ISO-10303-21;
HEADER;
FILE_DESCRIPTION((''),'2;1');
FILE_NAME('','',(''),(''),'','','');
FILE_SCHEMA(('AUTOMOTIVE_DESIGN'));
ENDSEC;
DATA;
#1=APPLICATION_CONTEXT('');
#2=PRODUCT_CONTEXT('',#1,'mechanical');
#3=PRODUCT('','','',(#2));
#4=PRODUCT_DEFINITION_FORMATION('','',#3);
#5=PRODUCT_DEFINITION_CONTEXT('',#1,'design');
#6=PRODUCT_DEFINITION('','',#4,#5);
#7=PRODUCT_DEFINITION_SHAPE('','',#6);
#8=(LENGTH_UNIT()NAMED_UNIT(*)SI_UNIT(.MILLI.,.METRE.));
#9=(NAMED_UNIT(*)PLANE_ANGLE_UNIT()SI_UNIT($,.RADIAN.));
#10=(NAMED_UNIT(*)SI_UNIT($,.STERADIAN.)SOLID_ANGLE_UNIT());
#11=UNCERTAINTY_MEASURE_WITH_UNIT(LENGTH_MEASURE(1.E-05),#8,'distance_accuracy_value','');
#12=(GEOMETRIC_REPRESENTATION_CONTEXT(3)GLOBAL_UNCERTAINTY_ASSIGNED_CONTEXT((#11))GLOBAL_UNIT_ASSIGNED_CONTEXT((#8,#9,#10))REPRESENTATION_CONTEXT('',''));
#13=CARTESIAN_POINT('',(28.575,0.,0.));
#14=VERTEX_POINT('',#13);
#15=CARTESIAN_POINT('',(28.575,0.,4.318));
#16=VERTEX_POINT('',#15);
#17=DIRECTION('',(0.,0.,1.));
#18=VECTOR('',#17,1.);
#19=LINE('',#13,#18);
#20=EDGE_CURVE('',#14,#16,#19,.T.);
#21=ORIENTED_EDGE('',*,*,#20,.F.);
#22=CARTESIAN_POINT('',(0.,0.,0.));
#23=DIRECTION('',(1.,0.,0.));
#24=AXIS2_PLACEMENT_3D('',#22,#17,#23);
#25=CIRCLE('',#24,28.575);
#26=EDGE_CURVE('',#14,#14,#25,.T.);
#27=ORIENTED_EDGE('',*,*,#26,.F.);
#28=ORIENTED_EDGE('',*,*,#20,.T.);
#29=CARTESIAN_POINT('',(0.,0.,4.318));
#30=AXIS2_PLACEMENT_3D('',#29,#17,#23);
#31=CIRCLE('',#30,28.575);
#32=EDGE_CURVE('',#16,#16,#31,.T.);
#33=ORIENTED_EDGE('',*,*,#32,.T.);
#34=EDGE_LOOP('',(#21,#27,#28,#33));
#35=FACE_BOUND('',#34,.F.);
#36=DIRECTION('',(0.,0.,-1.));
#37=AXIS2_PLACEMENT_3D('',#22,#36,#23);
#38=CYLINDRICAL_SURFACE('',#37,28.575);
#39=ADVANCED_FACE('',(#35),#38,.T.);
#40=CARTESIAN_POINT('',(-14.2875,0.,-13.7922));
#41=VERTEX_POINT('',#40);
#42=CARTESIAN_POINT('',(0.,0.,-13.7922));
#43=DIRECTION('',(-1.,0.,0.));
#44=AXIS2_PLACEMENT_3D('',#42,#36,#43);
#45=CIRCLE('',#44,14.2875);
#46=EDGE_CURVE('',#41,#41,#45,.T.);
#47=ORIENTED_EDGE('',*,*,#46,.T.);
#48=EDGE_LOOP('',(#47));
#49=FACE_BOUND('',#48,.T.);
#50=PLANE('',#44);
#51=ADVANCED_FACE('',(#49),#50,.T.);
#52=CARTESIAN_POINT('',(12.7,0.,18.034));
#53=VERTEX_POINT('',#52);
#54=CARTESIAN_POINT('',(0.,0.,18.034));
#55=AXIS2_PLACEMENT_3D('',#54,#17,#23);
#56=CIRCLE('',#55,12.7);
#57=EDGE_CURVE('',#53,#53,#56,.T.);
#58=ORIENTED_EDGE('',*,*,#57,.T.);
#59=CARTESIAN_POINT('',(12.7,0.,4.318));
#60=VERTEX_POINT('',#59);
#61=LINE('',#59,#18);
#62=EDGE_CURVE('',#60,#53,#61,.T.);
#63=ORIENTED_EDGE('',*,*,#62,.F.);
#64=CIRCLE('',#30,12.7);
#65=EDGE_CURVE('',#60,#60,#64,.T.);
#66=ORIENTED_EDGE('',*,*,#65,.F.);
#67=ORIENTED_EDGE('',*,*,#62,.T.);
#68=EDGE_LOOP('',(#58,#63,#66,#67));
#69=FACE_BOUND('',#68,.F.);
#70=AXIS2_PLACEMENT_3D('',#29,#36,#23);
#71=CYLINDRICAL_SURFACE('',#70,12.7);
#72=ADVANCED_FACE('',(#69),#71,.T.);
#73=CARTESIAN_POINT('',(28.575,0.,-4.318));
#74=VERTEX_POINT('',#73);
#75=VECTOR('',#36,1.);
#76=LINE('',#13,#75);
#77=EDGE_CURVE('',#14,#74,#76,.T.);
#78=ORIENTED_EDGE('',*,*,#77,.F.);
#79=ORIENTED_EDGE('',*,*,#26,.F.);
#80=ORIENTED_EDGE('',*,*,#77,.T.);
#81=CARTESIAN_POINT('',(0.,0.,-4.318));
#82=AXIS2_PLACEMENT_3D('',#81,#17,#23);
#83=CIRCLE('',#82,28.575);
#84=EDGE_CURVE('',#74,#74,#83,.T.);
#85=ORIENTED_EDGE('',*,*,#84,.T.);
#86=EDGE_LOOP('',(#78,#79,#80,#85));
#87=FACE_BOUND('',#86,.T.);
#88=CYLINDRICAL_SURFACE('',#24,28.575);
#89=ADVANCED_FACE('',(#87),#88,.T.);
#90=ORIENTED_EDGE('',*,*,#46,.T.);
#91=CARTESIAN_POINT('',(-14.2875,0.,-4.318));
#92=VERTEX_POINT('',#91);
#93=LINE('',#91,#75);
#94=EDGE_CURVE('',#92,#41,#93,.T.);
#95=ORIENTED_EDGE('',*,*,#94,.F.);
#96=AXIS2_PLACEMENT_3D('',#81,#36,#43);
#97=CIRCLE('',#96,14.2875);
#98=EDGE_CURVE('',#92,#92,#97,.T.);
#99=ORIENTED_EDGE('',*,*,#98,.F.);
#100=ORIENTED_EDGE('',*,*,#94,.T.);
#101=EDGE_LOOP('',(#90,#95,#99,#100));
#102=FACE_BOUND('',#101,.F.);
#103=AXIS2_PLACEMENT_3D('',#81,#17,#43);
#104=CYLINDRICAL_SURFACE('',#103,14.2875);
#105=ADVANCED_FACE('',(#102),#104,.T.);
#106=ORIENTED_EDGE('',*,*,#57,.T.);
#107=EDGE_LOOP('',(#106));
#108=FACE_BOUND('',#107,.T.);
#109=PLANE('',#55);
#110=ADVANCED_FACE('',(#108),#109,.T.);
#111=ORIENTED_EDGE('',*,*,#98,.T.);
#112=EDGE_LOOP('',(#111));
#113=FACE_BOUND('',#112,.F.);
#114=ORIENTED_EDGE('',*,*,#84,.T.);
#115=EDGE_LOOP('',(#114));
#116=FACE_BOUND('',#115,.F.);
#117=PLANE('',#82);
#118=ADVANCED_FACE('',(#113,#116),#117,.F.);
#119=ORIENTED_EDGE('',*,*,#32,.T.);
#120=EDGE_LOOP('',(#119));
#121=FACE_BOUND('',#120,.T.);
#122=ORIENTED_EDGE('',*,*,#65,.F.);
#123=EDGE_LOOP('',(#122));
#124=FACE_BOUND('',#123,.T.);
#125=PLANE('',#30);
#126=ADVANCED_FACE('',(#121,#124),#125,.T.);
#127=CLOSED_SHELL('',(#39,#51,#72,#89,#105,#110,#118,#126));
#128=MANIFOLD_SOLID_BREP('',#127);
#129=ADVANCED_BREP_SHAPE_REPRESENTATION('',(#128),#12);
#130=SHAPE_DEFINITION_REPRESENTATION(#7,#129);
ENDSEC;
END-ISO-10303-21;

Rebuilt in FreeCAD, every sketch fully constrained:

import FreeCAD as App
import Part
import Sketcher

V = App.Vector
Q = App.Units.Quantity

doc = App.newDocument("Part")
params = doc.addObject("Spreadsheet::Sheet", "Params")
for row, (alias, value) in enumerate([
    ("sketch1_diameter", "2.25 in"),
    ("pad1_length", "0.34 in"),
    ("sketch2_diameter", "1 in"),
    ("pad2_length", "0.54 in"),
    ("sketch3_diameter", "1.125 in"),
    ("pad3_length", "0.373 in"),
], start=1):
    params.set(f"A{row}", alias)
    params.set(f"B{row}", "=" + value)
    params.setAlias(f"B{row}", alias)

body = doc.addObject("PartDesign::Body", "Body")

# Sketch on XY plane
sketch1 = body.newObject("Sketcher::SketchObject", "Sketch")
sketch1.AttachmentSupport = (doc.getObject("XY_Plane"), [""])
sketch1.MapMode = "FlatFace"
sketch1.addGeometry(Part.Circle(V(0, 0, 0), V(0, 0, 1), 29), False)
sketch1.addConstraint([
    Sketcher.Constraint("Coincident", 0, 3, -1, 1),
    Sketcher.Constraint("Diameter", 0, Q("2.25 in")),
])
sketch1.setExpression("Constraints[1]", "Params.sketch1_diameter")
pad1 = body.newObject("PartDesign::Pad", "Pad")
pad1.Profile = sketch1
pad1.setExpression("Length", "Params.pad1_length")
pad1.Midplane = True

# Sketch on XY plane
sketch2 = body.newObject("Sketcher::SketchObject", "Sketch001")
sketch2.AttachmentSupport = (doc.getObject("XY_Plane"), [""])
sketch2.MapMode = "FlatFace"
sketch2.AttachmentOffset = App.Placement(V(0, 0, 0.17 * 25.4), App.Rotation())
sketch2.addGeometry(Part.Circle(V(0, 0, 0), V(0, 0, 1), 13), False)
sketch2.addConstraint([
    Sketcher.Constraint("Coincident", 0, 3, -1, 1),
    Sketcher.Constraint("Diameter", 0, Q("1 in")),
])
sketch2.setExpression("Constraints[1]", "Params.sketch2_diameter")
pad2 = body.newObject("PartDesign::Pad", "Pad001")
pad2.Profile = sketch2
pad2.setExpression("Length", "Params.pad2_length")

# Sketch on XY plane
sketch3 = body.newObject("Sketcher::SketchObject", "Sketch002")
sketch3.AttachmentSupport = (doc.getObject("XY_Plane"), [""])
sketch3.MapMode = "FlatFace"
sketch3.AttachmentOffset = App.Placement(V(0, 0, -0.17 * 25.4), App.Rotation())
sketch3.addGeometry(Part.Circle(V(0, 0, 0), V(0, 0, 1), 14), False)
sketch3.addConstraint([
    Sketcher.Constraint("Coincident", 0, 3, -1, 1),
    Sketcher.Constraint("Diameter", 0, Q("1.125 in")),
])
sketch3.setExpression("Constraints[1]", "Params.sketch3_diameter")
pad3 = body.newObject("PartDesign::Pad", "Pad002")
pad3.Profile = sketch3
pad3.setExpression("Length", "Params.pad3_length")
pad3.Reversed = True

doc.recompute()
